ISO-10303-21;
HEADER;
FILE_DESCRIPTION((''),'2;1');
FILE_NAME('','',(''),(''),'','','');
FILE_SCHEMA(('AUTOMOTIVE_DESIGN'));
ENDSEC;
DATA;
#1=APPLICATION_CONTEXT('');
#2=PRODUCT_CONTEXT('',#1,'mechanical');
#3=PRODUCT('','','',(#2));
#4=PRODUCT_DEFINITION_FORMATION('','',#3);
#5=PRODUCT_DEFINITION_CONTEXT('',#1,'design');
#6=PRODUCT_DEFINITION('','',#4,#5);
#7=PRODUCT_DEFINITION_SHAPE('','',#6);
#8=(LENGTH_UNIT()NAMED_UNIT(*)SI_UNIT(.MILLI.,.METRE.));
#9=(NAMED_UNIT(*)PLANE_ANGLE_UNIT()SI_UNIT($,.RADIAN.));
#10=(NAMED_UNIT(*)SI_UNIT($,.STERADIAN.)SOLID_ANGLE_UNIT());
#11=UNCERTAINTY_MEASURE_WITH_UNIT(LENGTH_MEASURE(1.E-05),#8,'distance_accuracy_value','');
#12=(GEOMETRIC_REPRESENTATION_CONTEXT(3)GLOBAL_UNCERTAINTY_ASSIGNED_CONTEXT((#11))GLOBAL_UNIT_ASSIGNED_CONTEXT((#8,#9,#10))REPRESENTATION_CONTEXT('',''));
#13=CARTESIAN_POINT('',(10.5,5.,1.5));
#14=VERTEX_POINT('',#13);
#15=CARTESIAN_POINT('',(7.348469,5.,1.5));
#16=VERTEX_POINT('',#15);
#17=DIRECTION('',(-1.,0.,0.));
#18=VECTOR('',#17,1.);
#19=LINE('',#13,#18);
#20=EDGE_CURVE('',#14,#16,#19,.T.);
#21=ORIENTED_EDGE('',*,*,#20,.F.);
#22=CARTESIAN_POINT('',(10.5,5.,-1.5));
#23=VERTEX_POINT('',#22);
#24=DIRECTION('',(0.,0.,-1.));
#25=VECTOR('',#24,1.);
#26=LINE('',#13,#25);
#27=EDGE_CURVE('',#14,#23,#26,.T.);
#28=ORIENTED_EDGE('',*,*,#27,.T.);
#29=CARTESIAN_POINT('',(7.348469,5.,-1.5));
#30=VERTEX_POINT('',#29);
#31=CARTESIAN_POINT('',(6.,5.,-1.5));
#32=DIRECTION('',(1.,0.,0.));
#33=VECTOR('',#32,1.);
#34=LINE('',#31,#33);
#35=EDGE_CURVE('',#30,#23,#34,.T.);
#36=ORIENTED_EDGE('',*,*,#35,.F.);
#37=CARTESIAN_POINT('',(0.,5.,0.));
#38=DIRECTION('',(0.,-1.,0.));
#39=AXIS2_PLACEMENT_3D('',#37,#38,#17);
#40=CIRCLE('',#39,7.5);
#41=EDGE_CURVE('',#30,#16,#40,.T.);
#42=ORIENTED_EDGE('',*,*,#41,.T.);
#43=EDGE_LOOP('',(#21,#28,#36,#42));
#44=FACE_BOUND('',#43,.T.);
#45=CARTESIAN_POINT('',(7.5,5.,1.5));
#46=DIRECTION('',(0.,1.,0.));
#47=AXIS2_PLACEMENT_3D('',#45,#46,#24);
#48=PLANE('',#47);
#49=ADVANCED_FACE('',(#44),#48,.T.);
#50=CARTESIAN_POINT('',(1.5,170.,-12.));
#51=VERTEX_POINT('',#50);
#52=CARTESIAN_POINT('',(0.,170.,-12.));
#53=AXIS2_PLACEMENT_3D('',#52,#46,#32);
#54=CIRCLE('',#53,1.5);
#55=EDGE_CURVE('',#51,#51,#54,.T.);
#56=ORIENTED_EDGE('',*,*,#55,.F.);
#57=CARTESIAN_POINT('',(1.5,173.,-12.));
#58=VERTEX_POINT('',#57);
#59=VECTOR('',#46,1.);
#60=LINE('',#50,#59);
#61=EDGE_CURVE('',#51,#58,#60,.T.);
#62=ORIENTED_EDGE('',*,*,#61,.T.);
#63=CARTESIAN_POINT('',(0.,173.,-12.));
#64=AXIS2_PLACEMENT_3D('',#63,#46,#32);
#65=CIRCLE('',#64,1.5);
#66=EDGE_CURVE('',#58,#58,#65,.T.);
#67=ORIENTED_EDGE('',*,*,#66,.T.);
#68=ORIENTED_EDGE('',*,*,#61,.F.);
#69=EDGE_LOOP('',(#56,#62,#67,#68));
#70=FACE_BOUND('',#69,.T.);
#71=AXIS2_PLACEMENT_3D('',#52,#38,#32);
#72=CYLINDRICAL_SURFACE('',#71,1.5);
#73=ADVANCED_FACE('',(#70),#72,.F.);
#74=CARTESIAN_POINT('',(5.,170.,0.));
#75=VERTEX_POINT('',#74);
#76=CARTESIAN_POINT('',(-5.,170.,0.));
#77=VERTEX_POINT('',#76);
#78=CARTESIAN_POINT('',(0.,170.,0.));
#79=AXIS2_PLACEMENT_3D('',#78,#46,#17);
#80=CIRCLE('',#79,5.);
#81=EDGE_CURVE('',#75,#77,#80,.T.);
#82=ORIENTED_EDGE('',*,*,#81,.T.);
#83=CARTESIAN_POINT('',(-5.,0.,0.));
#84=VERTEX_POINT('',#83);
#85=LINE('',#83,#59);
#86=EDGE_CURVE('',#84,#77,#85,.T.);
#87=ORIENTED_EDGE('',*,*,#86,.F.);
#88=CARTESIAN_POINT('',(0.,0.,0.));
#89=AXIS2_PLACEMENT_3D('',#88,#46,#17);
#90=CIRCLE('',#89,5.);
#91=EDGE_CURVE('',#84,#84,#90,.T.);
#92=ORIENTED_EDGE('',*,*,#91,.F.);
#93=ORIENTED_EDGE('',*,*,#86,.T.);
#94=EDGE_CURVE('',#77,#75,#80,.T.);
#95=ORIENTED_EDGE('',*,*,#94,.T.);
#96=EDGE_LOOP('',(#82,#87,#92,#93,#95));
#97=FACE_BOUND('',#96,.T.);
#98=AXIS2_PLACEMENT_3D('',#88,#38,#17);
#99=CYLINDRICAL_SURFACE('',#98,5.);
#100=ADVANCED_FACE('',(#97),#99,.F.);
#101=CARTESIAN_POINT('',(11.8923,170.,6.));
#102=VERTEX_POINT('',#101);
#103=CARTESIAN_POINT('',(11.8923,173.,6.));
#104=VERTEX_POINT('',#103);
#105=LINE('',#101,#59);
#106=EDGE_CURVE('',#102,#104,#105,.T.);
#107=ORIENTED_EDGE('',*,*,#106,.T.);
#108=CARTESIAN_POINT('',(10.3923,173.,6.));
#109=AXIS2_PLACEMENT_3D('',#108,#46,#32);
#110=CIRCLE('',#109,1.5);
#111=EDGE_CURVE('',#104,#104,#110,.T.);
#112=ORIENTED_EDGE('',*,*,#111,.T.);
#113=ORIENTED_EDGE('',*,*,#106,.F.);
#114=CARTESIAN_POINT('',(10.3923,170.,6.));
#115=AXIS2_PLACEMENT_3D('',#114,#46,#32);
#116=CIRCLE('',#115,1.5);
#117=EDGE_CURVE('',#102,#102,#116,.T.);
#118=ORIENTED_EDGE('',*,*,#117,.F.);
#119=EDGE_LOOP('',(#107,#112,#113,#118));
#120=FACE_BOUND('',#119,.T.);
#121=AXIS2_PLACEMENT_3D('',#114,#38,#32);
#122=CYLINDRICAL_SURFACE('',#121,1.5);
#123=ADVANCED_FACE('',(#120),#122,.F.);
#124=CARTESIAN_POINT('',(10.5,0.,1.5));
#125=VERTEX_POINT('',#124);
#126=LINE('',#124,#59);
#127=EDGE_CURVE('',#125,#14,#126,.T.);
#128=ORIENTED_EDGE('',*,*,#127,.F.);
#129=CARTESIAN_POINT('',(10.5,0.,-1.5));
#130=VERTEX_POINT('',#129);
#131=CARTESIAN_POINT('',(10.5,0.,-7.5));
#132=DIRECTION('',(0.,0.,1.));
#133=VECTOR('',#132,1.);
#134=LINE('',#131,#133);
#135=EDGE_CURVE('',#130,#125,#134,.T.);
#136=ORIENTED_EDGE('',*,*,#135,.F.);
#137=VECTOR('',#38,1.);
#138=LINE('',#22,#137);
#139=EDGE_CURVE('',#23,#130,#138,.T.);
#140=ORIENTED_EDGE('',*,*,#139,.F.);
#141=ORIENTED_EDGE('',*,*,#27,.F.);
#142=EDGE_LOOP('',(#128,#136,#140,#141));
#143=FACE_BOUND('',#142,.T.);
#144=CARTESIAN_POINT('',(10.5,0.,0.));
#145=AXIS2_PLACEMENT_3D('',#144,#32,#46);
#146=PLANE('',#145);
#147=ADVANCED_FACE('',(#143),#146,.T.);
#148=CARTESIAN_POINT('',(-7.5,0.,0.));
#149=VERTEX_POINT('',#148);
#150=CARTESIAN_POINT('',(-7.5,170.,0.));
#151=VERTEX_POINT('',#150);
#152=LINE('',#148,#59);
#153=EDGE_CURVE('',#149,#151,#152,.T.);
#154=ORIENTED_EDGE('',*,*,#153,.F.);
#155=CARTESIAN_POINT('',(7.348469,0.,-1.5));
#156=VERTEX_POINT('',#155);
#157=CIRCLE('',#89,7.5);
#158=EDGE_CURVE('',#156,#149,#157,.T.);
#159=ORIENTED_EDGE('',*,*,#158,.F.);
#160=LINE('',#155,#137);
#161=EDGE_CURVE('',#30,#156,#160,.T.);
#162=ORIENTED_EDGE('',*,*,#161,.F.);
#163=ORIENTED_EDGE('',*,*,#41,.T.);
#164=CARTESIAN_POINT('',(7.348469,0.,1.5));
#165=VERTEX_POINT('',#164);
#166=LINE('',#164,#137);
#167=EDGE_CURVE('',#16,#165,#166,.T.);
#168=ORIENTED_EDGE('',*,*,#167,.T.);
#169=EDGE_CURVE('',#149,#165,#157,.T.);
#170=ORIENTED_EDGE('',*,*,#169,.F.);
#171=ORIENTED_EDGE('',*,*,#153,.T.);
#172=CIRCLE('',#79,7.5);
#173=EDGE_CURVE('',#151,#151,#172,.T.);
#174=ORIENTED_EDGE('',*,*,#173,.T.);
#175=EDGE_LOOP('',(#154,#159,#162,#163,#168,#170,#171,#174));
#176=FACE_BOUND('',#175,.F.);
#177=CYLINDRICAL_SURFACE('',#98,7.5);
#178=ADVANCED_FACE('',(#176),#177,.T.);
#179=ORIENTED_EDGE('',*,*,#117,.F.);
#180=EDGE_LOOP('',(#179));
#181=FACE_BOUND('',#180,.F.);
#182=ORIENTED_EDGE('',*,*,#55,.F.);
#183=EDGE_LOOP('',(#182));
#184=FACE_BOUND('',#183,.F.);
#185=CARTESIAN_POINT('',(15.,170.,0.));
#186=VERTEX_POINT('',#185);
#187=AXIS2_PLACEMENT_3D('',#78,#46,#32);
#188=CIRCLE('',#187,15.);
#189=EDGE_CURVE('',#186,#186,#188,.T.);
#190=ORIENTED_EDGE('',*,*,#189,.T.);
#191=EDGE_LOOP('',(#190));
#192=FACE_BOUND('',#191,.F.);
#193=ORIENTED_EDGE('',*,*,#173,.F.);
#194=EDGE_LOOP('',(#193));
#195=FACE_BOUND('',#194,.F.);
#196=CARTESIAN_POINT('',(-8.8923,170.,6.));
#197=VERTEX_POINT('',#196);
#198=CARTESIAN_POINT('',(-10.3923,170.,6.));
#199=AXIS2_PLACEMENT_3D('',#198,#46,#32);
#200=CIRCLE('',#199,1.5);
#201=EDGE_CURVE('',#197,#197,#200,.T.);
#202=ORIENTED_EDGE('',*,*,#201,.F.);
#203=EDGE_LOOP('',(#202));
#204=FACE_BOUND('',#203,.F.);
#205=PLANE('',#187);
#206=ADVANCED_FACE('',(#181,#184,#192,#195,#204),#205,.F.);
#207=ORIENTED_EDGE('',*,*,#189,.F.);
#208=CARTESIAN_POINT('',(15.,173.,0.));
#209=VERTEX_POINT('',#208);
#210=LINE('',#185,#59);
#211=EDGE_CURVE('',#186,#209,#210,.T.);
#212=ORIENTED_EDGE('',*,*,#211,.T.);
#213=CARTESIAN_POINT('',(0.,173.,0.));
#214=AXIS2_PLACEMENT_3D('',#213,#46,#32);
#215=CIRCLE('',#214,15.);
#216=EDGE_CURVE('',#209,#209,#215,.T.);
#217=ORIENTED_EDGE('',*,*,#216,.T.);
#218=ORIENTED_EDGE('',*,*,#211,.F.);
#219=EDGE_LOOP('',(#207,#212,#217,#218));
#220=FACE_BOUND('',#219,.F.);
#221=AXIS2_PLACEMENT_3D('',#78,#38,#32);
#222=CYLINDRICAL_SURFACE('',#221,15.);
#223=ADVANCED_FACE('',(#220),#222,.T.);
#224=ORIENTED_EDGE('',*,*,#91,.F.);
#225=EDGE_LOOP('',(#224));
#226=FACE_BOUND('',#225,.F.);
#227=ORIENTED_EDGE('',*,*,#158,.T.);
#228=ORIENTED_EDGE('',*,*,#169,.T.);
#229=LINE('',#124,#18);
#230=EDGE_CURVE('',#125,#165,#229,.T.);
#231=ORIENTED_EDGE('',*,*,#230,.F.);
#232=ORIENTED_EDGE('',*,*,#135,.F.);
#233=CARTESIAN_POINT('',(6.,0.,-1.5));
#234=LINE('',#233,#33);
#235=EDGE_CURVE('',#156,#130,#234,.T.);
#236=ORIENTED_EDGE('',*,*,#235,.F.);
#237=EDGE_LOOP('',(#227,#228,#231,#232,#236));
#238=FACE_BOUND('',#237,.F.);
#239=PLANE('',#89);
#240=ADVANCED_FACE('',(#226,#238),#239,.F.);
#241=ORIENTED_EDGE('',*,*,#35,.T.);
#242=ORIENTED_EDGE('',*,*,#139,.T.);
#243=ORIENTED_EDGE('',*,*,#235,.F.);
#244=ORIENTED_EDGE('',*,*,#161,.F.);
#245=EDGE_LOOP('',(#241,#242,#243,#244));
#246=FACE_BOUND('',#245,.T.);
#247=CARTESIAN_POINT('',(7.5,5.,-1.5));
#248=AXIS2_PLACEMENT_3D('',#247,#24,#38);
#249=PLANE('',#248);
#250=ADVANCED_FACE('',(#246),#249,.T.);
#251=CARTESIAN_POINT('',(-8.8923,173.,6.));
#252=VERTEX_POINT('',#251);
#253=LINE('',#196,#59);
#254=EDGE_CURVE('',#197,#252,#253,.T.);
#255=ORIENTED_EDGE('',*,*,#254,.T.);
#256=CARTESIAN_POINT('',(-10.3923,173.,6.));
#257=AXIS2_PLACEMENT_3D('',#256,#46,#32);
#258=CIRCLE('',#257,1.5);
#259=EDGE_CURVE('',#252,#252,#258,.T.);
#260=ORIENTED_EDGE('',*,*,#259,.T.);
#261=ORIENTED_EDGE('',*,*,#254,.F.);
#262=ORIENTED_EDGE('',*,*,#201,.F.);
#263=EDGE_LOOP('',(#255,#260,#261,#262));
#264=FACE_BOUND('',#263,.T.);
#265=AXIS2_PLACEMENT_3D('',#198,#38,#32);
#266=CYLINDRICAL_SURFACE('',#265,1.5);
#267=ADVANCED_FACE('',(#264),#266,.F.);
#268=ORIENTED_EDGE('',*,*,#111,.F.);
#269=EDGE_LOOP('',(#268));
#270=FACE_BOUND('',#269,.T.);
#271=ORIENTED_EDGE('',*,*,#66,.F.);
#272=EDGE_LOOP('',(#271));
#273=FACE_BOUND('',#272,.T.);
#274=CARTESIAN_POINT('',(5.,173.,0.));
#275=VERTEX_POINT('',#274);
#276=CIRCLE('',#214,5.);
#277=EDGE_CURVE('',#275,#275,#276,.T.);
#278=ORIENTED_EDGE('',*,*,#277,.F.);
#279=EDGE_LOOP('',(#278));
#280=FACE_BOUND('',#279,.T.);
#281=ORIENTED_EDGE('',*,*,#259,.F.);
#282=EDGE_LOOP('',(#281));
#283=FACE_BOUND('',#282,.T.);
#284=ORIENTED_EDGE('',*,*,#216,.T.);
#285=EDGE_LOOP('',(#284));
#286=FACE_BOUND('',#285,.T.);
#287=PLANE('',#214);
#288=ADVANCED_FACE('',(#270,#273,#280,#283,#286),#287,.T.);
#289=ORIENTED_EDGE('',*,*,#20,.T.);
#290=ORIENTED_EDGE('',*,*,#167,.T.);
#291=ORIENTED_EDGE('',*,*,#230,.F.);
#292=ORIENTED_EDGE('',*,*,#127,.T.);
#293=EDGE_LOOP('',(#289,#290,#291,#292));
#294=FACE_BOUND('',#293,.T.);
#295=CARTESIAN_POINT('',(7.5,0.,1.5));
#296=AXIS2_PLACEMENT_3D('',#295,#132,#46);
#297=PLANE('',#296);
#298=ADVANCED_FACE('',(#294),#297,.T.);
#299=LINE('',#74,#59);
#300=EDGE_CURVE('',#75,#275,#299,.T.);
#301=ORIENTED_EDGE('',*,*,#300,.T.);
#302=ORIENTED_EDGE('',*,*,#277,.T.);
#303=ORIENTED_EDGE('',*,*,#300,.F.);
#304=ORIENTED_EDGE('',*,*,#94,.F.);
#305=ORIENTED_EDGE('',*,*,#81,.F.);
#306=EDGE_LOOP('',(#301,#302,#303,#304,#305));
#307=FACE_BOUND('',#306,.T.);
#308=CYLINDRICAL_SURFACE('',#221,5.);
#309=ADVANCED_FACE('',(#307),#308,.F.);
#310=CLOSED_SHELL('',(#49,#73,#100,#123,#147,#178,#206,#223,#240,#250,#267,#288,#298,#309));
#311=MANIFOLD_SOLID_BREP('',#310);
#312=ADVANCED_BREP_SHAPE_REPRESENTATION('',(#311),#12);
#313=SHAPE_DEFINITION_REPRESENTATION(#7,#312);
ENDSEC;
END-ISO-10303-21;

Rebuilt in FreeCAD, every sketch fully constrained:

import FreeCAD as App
import Part
import Sketcher

V = App.Vector


def add_polygon(sketch, points):
    """Adds a closed chain of lines whose ends are joined by coincident constraints."""
    first, n = sketch.GeometryCount, len(points)
    for a, b in zip(points, points[1:] + points[:1]):
        sketch.addGeometry(Part.LineSegment(App.Vector(*a, 0), App.Vector(*b, 0)), False)
    for i in range(n):
        sketch.addConstraint(Sketcher.Constraint("Coincident", first + i, 2, first + (i + 1) % n, 1))

doc = App.newDocument("Part")
body = doc.addObject("PartDesign::Body", "Body")

# Sketch on XZ plane
sketch1 = doc.addObject("Sketcher::SketchObject", "Sketch")
body.addObject(sketch1)
sketch1.AttachmentSupport = (doc.XZ_Plane, [""])
sketch1.MapMode = "FlatFace"
sketch1.addGeometry(Part.Circle(V(0, 0, 0), V(0, 0, 1), 8), False)
sketch1.addGeometry(Part.Circle(V(0, 0, 0), V(0, 0, 1), 5), False)
sketch1.addConstraint(Sketcher.Constraint("Coincident", 0, 3, -1, 1))
sketch1.addConstraint(Sketcher.Constraint("Coincident", 1, 3, -1, 1))
sketch1.addConstraint(Sketcher.Constraint("Diameter", 0, 15.0))
sketch1.addConstraint(Sketcher.Constraint("Diameter", 1, 10.0))
pad1 = doc.addObject("PartDesign::Pad", "Pad")
body.addObject(pad1)
pad1.Profile = sketch1
pad1.Length = 170
pad1.Reversed = True

# Sketch on YZ plane
sketch2 = doc.addObject("Sketcher::SketchObject", "Sketch001")
body.addObject(sketch2)
sketch2.AttachmentSupport = (doc.YZ_Plane, [""])
sketch2.MapMode = "FlatFace"
sketch2.AttachmentOffset = App.Placement(V(0, 0, 7.5), App.Rotation())
add_polygon(sketch2, [(0, 1.5), (0, -1.5), (5, -1.5), (5, 1.5)])  # lines 0-3
sketch2.addConstraint(Sketcher.Constraint("Vertical", 0))
sketch2.addConstraint(Sketcher.Constraint("Horizontal", 1))
sketch2.addConstraint(Sketcher.Constraint("Vertical", 2))
sketch2.addConstraint(Sketcher.Constraint("Horizontal", 3))
sketch2.addConstraint(Sketcher.Constraint("Symmetric", 0, 2, 3, 2, -1, 1))
sketch2.addConstraint(Sketcher.Constraint("DistanceX", 1, 1, 1, 2, 5.0))
sketch2.addConstraint(Sketcher.Constraint("DistanceY", 0, 2, -1, 1, 1.5))
pad2 = doc.addObject("PartDesign::Pad", "Pad001")
body.addObject(pad2)
pad2.Profile = sketch2
pad2.Type = "TwoLengths"
pad2.Length = 3
pad2.Length2 = 1.5

# Sketch on XZ plane
sketch3 = doc.addObject("Sketcher::SketchObject", "Sketch002")
body.addObject(sketch3)
sketch3.AttachmentSupport = (doc.XZ_Plane, [""])
sketch3.MapMode = "FlatFace"
sketch3.AttachmentOffset = App.Placement(V(0, 0, -170), App.Rotation())
sketch3.addGeometry(Part.Circle(V(0, 0, 0), V(0, 0, 1), 15), False)
sketch3.addGeometry(Part.Circle(V(-10.4, 6, 0), V(0, 0, 1), 1.5), False)
sketch3.addGeometry(Part.Circle(V(10.4, 6, 0), V(0, 0, 1), 1.5), False)
sketch3.addGeometry(Part.Circle(V(0, 0, 0), V(0, 0, 1), 5), False)
sketch3.addGeometry(Part.Circle(V(0, -12, 0), V(0, 0, 1), 1.5), False)
sketch3.addConstraint(Sketcher.Constraint("Coincident", 0, 3, -1, 1))
sketch3.addConstraint(Sketcher.Constraint("Coincident", 3, 3, -1, 1))
sketch3.addConstraint(Sketcher.Constraint("Equal", 1, 2))
sketch3.addConstraint(Sketcher.Constraint("Equal", 2, 4))
sketch3.addConstraint(Sketcher.Constraint("Symmetric", 1, 3, 2, 3, -2))
sketch3.addConstraint(Sketcher.Constraint("PointOnObject", 4, 3, -2))
sketch3.addConstraint(Sketcher.Constraint("Diameter", 0, 30.0))
sketch3.addConstraint(Sketcher.Constraint("Diameter", 1, 3.0))
sketch3.addConstraint(Sketcher.Constraint("Diameter", 3, 10.0))
sketch3.addConstraint(Sketcher.Constraint("DistanceY", 4, 3, -1, 1, 12.0))
sketch3.addConstraint(Sketcher.Constraint("DistanceY", -1, 1, 1, 3, 6.0))
sketch3.addConstraint(Sketcher.Constraint("DistanceX", 1, 3, -1, 1, 10.3923))
pad3 = doc.addObject("PartDesign::Pad", "Pad002")
body.addObject(pad3)
pad3.Profile = sketch3
pad3.Length = 3
pad3.Reversed = True

doc.recompute()
